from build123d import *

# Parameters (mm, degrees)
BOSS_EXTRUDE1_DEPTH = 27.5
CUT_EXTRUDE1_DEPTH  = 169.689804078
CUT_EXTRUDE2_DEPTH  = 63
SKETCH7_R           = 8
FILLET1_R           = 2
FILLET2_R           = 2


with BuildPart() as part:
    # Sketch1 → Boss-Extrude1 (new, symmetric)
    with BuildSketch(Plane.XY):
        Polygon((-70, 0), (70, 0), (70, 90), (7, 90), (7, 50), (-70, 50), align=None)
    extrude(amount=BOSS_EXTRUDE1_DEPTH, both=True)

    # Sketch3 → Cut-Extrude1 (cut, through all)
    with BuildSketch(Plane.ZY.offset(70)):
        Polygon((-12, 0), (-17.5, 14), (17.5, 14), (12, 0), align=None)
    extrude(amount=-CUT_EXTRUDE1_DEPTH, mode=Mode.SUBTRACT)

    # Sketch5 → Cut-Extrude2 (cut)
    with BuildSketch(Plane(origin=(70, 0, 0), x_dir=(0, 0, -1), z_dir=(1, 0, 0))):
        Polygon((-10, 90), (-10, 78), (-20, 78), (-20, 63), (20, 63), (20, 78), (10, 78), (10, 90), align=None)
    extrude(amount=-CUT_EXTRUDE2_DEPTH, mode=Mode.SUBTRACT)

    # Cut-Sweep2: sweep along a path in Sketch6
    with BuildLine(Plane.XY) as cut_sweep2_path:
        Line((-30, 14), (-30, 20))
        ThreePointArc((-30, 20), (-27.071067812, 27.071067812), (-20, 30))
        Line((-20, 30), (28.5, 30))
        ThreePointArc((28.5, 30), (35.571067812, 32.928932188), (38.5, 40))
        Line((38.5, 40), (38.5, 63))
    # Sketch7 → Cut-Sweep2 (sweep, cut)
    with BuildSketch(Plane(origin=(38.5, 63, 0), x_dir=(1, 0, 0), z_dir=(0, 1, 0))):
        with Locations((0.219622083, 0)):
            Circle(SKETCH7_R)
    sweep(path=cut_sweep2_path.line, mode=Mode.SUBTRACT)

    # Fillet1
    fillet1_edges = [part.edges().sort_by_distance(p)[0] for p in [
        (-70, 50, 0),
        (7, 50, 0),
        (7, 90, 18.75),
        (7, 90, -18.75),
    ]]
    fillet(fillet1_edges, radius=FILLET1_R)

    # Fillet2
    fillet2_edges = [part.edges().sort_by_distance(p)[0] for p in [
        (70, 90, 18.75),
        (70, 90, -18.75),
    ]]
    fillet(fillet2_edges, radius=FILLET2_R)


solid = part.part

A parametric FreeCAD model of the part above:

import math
import FreeCAD as App
import Part
import Sketcher
from FreeCAD import Vector
Q = App.Units.Quantity


def edges_at(feature, points):
    """Names of the edges that pass closest to the given points."""
    edges = feature.Shape.Edges
    near = lambda p: min(range(len(edges)), key=lambda i: edges[i].distToShape(Part.Vertex(*p))[0])
    return sorted({f"Edge{near(p) + 1}" for p in points})

doc = App.newDocument("Part")
params = doc.addObject("Spreadsheet::Sheet", "Params")
for row, (alias, value) in enumerate([
    ("sketch1_width", "140 mm"),
    ("sketch1_width2", "63 mm"),
    ("sketch1_height", "90 mm"),
    ("sketch1_height2", "40 mm"),
    ("pad1_length", "55 mm"),
    ("sketch2_height", "24 mm"),
    ("sketch2_height2", "35 mm"),
    ("sketch3_width", "12 mm"),
    ("sketch3_width2", "15 mm"),
    ("sketch3_height", "10 mm"),
    ("sketch3_height2", "40 mm"),
    ("pocket2_length", "63 mm"),
    ("sketch4_diameter", "16 mm"),
    ("sketch5_radius", "10 mm"),
    ("sketch5_height", "6 mm"),
    ("sketch5_height2", "23 mm"),
    ("sketch5_width", "48.5 mm"),
    ("fillet_radius", "2 mm"),
    ("fillet2_radius", "2 mm"),
], start=1):
    params.set(f"A{row}", alias)
    params.set(f"B{row}", "=" + value)
    params.setAlias(f"B{row}", alias)

body = doc.addObject("PartDesign::Body", "Body")

# Sketch on XY plane
sketch1 = body.newObject("Sketcher::SketchObject", "Sketch")
sketch1.AttachmentSupport = (doc.getObject("XY_Plane"), [""])
sketch1.MapMode = "FlatFace"
sketch1.addGeometry(Part.LineSegment(Vector(-70, 0, 0), Vector(70, 0, 0)), False)
sketch1.addGeometry(Part.LineSegment(Vector(70, 0, 0), Vector(70, 90, 0)), False)
sketch1.addGeometry(Part.LineSegment(Vector(70, 90, 0), Vector(7, 90, 0)), False)
sketch1.addGeometry(Part.LineSegment(Vector(7, 90, 0), Vector(7, 50, 0)), False)
sketch1.addGeometry(Part.LineSegment(Vector(7, 50, 0), Vector(-70, 50, 0)), False)
sketch1.addGeometry(Part.LineSegment(Vector(-70, 50, 0), Vector(-70, 0, 0)), False)
sketch1.addConstraint(Sketcher.Constraint("Coincident", 0, 2, 1, 1))
sketch1.addConstraint(Sketcher.Constraint("Coincident", 1, 2, 2, 1))
sketch1.addConstraint(Sketcher.Constraint("Coincident", 2, 2, 3, 1))
sketch1.addConstraint(Sketcher.Constraint("Coincident", 3, 2, 4, 1))
sketch1.addConstraint(Sketcher.Constraint("Coincident", 4, 2, 5, 1))
sketch1.addConstraint(Sketcher.Constraint("Coincident", 5, 2, 0, 1))
sketch1.addConstraint(Sketcher.Constraint("Horizontal", 0))
sketch1.addConstraint(Sketcher.Constraint("Vertical", 1))
sketch1.addConstraint(Sketcher.Constraint("Horizontal", 2))
sketch1.addConstraint(Sketcher.Constraint("Vertical", 3))
sketch1.addConstraint(Sketcher.Constraint("Horizontal", 4))
sketch1.addConstraint(Sketcher.Constraint("Vertical", 5))
sketch1.addConstraint(Sketcher.Constraint("Symmetric", 0, 2, 5, 2, -1, 1))
sketch1.addConstraint(Sketcher.Constraint("DistanceX", 0, 1, 0, 2, Q("140 mm")))
sketch1.addConstraint(Sketcher.Constraint("DistanceX", 2, 2, 2, 1, Q("63 mm")))
sketch1.addConstraint(Sketcher.Constraint("DistanceY", 1, 1, 1, 2, Q("90 mm")))
sketch1.addConstraint(Sketcher.Constraint("DistanceY", 3, 2, 3, 1, Q("40 mm")))
sketch1.setExpression("Constraints[13]", "Params.sketch1_width")
sketch1.setExpression("Constraints[14]", "Params.sketch1_width2")
sketch1.setExpression("Constraints[15]", "Params.sketch1_height")
sketch1.setExpression("Constraints[16]", "Params.sketch1_height2")
pad1 = body.newObject("PartDesign::Pad", "Pad")
pad1.Profile = sketch1
pad1.setExpression("Length", "Params.pad1_length")
pad1.Midplane = True

# Sketch on YZ plane
sketch2 = body.newObject("Sketcher::SketchObject", "Sketch001")
sketch2.AttachmentSupport = (doc.getObject("YZ_Plane"), [""])
sketch2.MapMode = "FlatFace"
sketch2.AttachmentOffset = App.Placement(Vector(0, 0, -70), App.Rotation())
sketch2.addGeometry(Part.LineSegment(Vector(14, -18, 0), Vector(0, -12, 0)), False)
sketch2.addGeometry(Part.LineSegment(Vector(0, -12, 0), Vector(0, 12, 0)), False)
sketch2.addGeometry(Part.LineSegment(Vector(0, 12, 0), Vector(14, 18, 0)), False)
sketch2.addGeometry(Part.LineSegment(Vector(14, 18, 0), Vector(14, -18, 0)), False)
sketch2.addConstraint(Sketcher.Constraint("Coincident", 0, 2, 1, 1))
sketch2.addConstraint(Sketcher.Constraint("Coincident", 1, 2, 2, 1))
sketch2.addConstraint(Sketcher.Constraint("Coincident", 2, 2, 3, 1))
sketch2.addConstraint(Sketcher.Constraint("Coincident", 3, 2, 0, 1))
sketch2.addConstraint(Sketcher.Constraint("Vertical", 1))
sketch2.addConstraint(Sketcher.Constraint("Vertical", 3))
sketch2.addConstraint(Sketcher.Constraint("Symmetric", 0, 2, 1, 2, -1, 1))
sketch2.addConstraint(Sketcher.Constraint("Equal", 0, 2))
sketch2.addConstraint(Sketcher.Constraint("DistanceY", 1, 1, 1, 2, Q("24 mm")))
sketch2.addConstraint(Sketcher.Constraint("DistanceY", 3, 2, 3, 1, Q("35 mm")))
sketch2.addConstraint(Sketcher.Constraint("DistanceX", -1, 1, 2, 2, Q("14 mm")))
sketch2.setExpression("Constraints[8]", "Params.sketch2_height")
sketch2.setExpression("Constraints[9]", "Params.sketch2_height2")
pocket1 = body.newObject("PartDesign::Pocket", "Pocket")
pocket1.Profile = sketch2
pocket1.Type = "ThroughAll"
pocket1.Reversed = True

# Sketch on YZ plane
sketch3 = body.newObject("Sketcher::SketchObject", "Sketch002")
sketch3.AttachmentSupport = (doc.getObject("YZ_Plane"), [""])
sketch3.MapMode = "FlatFace"
sketch3.AttachmentOffset = App.Placement(Vector(0, 0, 70), App.Rotation())
sketch3.addGeometry(Part.LineSegment(Vector(90, 10, 0), Vector(78, 10, 0)), False)
sketch3.addGeometry(Part.LineSegment(Vector(78, 10, 0), Vector(78, 20, 0)), False)
sketch3.addGeometry(Part.LineSegment(Vector(78, 20, 0), Vector(63, 20, 0)), False)
sketch3.addGeometry(Part.LineSegment(Vector(63, 20, 0), Vector(63, -20, 0)), False)
sketch3.addGeometry(Part.LineSegment(Vector(63, -20, 0), Vector(78, -20, 0)), False)
sketch3.addGeometry(Part.LineSegment(Vector(78, -20, 0), Vector(78, -10, 0)), False)
sketch3.addGeometry(Part.LineSegment(Vector(78, -10, 0), Vector(90, -10, 0)), False)
sketch3.addGeometry(Part.LineSegment(Vector(90, -10, 0), Vector(90, 10, 0)), False)
sketch3.addConstraint(Sketcher.Constraint("Coincident", 0, 2, 1, 1))
sketch3.addConstraint(Sketcher.Constraint("Coincident", 1, 2, 2, 1))
sketch3.addConstraint(Sketcher.Constraint("Coincident", 2, 2, 3, 1))
sketch3.addConstraint(Sketcher.Constraint("Coincident", 3, 2, 4, 1))
sketch3.addConstraint(Sketcher.Constraint("Coincident", 4, 2, 5, 1))
sketch3.addConstraint(Sketcher.Constraint("Coincident", 5, 2, 6, 1))
sketch3.addConstraint(Sketcher.Constraint("Coincident", 6, 2, 7, 1))
sketch3.addConstraint(Sketcher.Constraint("Coincident", 7, 2, 0, 1))
sketch3.addConstraint(Sketcher.Constraint("Horizontal", 0))
sketch3.addConstraint(Sketcher.Constraint("Vertical", 1))
sketch3.addConstraint(Sketcher.Constraint("Horizontal", 2))
sketch3.addConstraint(Sketcher.Constraint("Vertical", 3))
sketch3.addConstraint(Sketcher.Constraint("Horizontal", 4))
sketch3.addConstraint(Sketcher.Constraint("Vertical", 5))
sketch3.addConstraint(Sketcher.Constraint("Horizontal", 6))
sketch3.addConstraint(Sketcher.Constraint("Vertical", 7))
sketch3.addConstraint(Sketcher.Constraint("Symmetric", 1, 2, 4, 2, -1))
sketch3.addConstraint(Sketcher.Constraint("Equal", 1, 5))
sketch3.addConstraint(Sketcher.Constraint("DistanceX", 0, 2, 0, 1, Q("12 mm")))
sketch3.addConstraint(Sketcher.Constraint("DistanceX", 2, 2, 2, 1, Q("15 mm")))
sketch3.addConstraint(Sketcher.Constraint("DistanceY", 1, 1, 1, 2, Q("10 mm")))
sketch3.addConstraint(Sketcher.Constraint("DistanceY", 3, 2, 3, 1, Q("40 mm")))
sketch3.addConstraint(Sketcher.Constraint("DistanceX", -1, 1, 0, 2, Q("78 mm")))
sketch3.setExpression("Constraints[18]", "Params.sketch3_width")
sketch3.setExpression("Constraints[19]", "Params.sketch3_width2")
sketch3.setExpression("Constraints[20]", "Params.sketch3_height")
sketch3.setExpression("Constraints[21]", "Params.sketch3_height2")
pocket2 = body.newObject("PartDesign::Pocket", "Pocket001")
pocket2.Profile = sketch3
pocket2.setExpression("Length", "Params.pocket2_length")

# Sketch on XZ plane
sketch4 = body.newObject("Sketcher::SketchObject", "Sketch003")
sketch4.AttachmentSupport = (doc.getObject("XZ_Plane"), [""])
sketch4.MapMode = "FlatFace"
sketch4.AttachmentOffset = App.Placement(Vector(0, 0, -63), App.Rotation())
sketch4.addGeometry(Part.Circle(Vector(39, 0, 0), Vector(0, 0, 1), 8), False)
sketch4.addConstraint(Sketcher.Constraint("PointOnObject", 0, 3, -1))
sketch4.addConstraint(Sketcher.Constraint("Diameter", 0, Q("16 mm")))
sketch4.addConstraint(Sketcher.Constraint("DistanceX", -1, 1, 0, 3, Q("38.719622 mm")))
sketch4.setExpression("Constraints[1]", "Params.sketch4_diameter")

# Sketch on XY plane
sketch5 = body.newObject("Sketcher::SketchObject", "Sketch004")
sketch5.AttachmentSupport = (doc.getObject("XY_Plane"), [""])
sketch5.MapMode = "FlatFace"
sketch5.addGeometry(Part.LineSegment(Vector(-30, 14, 0), Vector(-30, 20, 0)), False)
sketch5.addGeometry(Part.ArcOfCircle(Part.Circle(Vector(-20, 20, 0), Vector(0, 0, 1), 10), math.radians(90), math.radians(180)), False)
sketch5.addGeometry(Part.LineSegment(Vector(-20, 30, 0), Vector(28, 30, 0)), False)
sketch5.addGeometry(Part.ArcOfCircle(Part.Circle(Vector(28, 40, 0), Vector(0, 0, 1), 10), math.radians(-90), math.radians(0)), False)
sketch5.addGeometry(Part.LineSegment(Vector(38, 40, 0), Vector(38, 63, 0)), False)
sketch5.addConstraint(Sketcher.Constraint("Tangent", 0, 2, 1, 2))
sketch5.addConstraint(Sketcher.Constraint("Tangent", 1, 1, 2, 1))
sketch5.addConstraint(Sketcher.Constraint("Tangent", 2, 2, 3, 1))
sketch5.addConstraint(Sketcher.Constraint("Tangent", 3, 2, 4, 1))
sketch5.addConstraint(Sketcher.Constraint("Vertical", 0))
sketch5.addConstraint(Sketcher.Constraint("Horizontal", 2))
sketch5.addConstraint(Sketcher.Constraint("Vertical", 4))
sketch5.addConstraint(Sketcher.Constraint("Equal", 1, 3))
sketch5.addConstraint(Sketcher.Constraint("Radius", 1, Q("10 mm")))
sketch5.addConstraint(Sketcher.Constraint("DistanceY", 0, 1, 0, 2, Q("6 mm")))
sketch5.addConstraint(Sketcher.Constraint("DistanceY", 4, 1, 4, 2, Q("23 mm")))
sketch5.addConstraint(Sketcher.Constraint("DistanceX", 2, 1, 2, 2, Q("48.5 mm")))
sketch5.addConstraint(Sketcher.Constraint("DistanceX", 1, 3, -1, 1, Q("20 mm")))
sketch5.addConstraint(Sketcher.Constraint("DistanceY", -1, 1, 1, 3, Q("20 mm")))
sketch5.setExpression("Constraints[8]", "Params.sketch5_radius")
sketch5.setExpression("Constraints[9]", "Params.sketch5_height")
sketch5.setExpression("Constraints[10]", "Params.sketch5_height2")
sketch5.setExpression("Constraints[11]", "Params.sketch5_width")
doc.recompute()

subtractivepipe = body.newObject("PartDesign::SubtractivePipe", "SubtractivePipe")
subtractivepipe.Profile = sketch4
subtractivepipe.Spine = (sketch5, ["Edge1", "Edge2", "Edge3", "Edge4", "Edge5"])
doc.recompute()

fillet = body.newObject("PartDesign::Fillet", "Fillet")
fillet.Base = (subtractivepipe, edges_at(subtractivepipe, [
    (-70, 50, 0),
    (7, 50, 0),
    (7, 90, 18.75),
    (7, 90, -18.75),
]))
fillet.setExpression("Radius", "Params.fillet_radius")
doc.recompute()

fillet2 = body.newObject("PartDesign::Fillet", "Fillet001")
fillet2.Base = (fillet, edges_at(fillet, [(70, 90, 18.75), (70, 90, -18.75)]))
fillet2.setExpression("Radius", "Params.fillet2_radius")

doc.recompute()
